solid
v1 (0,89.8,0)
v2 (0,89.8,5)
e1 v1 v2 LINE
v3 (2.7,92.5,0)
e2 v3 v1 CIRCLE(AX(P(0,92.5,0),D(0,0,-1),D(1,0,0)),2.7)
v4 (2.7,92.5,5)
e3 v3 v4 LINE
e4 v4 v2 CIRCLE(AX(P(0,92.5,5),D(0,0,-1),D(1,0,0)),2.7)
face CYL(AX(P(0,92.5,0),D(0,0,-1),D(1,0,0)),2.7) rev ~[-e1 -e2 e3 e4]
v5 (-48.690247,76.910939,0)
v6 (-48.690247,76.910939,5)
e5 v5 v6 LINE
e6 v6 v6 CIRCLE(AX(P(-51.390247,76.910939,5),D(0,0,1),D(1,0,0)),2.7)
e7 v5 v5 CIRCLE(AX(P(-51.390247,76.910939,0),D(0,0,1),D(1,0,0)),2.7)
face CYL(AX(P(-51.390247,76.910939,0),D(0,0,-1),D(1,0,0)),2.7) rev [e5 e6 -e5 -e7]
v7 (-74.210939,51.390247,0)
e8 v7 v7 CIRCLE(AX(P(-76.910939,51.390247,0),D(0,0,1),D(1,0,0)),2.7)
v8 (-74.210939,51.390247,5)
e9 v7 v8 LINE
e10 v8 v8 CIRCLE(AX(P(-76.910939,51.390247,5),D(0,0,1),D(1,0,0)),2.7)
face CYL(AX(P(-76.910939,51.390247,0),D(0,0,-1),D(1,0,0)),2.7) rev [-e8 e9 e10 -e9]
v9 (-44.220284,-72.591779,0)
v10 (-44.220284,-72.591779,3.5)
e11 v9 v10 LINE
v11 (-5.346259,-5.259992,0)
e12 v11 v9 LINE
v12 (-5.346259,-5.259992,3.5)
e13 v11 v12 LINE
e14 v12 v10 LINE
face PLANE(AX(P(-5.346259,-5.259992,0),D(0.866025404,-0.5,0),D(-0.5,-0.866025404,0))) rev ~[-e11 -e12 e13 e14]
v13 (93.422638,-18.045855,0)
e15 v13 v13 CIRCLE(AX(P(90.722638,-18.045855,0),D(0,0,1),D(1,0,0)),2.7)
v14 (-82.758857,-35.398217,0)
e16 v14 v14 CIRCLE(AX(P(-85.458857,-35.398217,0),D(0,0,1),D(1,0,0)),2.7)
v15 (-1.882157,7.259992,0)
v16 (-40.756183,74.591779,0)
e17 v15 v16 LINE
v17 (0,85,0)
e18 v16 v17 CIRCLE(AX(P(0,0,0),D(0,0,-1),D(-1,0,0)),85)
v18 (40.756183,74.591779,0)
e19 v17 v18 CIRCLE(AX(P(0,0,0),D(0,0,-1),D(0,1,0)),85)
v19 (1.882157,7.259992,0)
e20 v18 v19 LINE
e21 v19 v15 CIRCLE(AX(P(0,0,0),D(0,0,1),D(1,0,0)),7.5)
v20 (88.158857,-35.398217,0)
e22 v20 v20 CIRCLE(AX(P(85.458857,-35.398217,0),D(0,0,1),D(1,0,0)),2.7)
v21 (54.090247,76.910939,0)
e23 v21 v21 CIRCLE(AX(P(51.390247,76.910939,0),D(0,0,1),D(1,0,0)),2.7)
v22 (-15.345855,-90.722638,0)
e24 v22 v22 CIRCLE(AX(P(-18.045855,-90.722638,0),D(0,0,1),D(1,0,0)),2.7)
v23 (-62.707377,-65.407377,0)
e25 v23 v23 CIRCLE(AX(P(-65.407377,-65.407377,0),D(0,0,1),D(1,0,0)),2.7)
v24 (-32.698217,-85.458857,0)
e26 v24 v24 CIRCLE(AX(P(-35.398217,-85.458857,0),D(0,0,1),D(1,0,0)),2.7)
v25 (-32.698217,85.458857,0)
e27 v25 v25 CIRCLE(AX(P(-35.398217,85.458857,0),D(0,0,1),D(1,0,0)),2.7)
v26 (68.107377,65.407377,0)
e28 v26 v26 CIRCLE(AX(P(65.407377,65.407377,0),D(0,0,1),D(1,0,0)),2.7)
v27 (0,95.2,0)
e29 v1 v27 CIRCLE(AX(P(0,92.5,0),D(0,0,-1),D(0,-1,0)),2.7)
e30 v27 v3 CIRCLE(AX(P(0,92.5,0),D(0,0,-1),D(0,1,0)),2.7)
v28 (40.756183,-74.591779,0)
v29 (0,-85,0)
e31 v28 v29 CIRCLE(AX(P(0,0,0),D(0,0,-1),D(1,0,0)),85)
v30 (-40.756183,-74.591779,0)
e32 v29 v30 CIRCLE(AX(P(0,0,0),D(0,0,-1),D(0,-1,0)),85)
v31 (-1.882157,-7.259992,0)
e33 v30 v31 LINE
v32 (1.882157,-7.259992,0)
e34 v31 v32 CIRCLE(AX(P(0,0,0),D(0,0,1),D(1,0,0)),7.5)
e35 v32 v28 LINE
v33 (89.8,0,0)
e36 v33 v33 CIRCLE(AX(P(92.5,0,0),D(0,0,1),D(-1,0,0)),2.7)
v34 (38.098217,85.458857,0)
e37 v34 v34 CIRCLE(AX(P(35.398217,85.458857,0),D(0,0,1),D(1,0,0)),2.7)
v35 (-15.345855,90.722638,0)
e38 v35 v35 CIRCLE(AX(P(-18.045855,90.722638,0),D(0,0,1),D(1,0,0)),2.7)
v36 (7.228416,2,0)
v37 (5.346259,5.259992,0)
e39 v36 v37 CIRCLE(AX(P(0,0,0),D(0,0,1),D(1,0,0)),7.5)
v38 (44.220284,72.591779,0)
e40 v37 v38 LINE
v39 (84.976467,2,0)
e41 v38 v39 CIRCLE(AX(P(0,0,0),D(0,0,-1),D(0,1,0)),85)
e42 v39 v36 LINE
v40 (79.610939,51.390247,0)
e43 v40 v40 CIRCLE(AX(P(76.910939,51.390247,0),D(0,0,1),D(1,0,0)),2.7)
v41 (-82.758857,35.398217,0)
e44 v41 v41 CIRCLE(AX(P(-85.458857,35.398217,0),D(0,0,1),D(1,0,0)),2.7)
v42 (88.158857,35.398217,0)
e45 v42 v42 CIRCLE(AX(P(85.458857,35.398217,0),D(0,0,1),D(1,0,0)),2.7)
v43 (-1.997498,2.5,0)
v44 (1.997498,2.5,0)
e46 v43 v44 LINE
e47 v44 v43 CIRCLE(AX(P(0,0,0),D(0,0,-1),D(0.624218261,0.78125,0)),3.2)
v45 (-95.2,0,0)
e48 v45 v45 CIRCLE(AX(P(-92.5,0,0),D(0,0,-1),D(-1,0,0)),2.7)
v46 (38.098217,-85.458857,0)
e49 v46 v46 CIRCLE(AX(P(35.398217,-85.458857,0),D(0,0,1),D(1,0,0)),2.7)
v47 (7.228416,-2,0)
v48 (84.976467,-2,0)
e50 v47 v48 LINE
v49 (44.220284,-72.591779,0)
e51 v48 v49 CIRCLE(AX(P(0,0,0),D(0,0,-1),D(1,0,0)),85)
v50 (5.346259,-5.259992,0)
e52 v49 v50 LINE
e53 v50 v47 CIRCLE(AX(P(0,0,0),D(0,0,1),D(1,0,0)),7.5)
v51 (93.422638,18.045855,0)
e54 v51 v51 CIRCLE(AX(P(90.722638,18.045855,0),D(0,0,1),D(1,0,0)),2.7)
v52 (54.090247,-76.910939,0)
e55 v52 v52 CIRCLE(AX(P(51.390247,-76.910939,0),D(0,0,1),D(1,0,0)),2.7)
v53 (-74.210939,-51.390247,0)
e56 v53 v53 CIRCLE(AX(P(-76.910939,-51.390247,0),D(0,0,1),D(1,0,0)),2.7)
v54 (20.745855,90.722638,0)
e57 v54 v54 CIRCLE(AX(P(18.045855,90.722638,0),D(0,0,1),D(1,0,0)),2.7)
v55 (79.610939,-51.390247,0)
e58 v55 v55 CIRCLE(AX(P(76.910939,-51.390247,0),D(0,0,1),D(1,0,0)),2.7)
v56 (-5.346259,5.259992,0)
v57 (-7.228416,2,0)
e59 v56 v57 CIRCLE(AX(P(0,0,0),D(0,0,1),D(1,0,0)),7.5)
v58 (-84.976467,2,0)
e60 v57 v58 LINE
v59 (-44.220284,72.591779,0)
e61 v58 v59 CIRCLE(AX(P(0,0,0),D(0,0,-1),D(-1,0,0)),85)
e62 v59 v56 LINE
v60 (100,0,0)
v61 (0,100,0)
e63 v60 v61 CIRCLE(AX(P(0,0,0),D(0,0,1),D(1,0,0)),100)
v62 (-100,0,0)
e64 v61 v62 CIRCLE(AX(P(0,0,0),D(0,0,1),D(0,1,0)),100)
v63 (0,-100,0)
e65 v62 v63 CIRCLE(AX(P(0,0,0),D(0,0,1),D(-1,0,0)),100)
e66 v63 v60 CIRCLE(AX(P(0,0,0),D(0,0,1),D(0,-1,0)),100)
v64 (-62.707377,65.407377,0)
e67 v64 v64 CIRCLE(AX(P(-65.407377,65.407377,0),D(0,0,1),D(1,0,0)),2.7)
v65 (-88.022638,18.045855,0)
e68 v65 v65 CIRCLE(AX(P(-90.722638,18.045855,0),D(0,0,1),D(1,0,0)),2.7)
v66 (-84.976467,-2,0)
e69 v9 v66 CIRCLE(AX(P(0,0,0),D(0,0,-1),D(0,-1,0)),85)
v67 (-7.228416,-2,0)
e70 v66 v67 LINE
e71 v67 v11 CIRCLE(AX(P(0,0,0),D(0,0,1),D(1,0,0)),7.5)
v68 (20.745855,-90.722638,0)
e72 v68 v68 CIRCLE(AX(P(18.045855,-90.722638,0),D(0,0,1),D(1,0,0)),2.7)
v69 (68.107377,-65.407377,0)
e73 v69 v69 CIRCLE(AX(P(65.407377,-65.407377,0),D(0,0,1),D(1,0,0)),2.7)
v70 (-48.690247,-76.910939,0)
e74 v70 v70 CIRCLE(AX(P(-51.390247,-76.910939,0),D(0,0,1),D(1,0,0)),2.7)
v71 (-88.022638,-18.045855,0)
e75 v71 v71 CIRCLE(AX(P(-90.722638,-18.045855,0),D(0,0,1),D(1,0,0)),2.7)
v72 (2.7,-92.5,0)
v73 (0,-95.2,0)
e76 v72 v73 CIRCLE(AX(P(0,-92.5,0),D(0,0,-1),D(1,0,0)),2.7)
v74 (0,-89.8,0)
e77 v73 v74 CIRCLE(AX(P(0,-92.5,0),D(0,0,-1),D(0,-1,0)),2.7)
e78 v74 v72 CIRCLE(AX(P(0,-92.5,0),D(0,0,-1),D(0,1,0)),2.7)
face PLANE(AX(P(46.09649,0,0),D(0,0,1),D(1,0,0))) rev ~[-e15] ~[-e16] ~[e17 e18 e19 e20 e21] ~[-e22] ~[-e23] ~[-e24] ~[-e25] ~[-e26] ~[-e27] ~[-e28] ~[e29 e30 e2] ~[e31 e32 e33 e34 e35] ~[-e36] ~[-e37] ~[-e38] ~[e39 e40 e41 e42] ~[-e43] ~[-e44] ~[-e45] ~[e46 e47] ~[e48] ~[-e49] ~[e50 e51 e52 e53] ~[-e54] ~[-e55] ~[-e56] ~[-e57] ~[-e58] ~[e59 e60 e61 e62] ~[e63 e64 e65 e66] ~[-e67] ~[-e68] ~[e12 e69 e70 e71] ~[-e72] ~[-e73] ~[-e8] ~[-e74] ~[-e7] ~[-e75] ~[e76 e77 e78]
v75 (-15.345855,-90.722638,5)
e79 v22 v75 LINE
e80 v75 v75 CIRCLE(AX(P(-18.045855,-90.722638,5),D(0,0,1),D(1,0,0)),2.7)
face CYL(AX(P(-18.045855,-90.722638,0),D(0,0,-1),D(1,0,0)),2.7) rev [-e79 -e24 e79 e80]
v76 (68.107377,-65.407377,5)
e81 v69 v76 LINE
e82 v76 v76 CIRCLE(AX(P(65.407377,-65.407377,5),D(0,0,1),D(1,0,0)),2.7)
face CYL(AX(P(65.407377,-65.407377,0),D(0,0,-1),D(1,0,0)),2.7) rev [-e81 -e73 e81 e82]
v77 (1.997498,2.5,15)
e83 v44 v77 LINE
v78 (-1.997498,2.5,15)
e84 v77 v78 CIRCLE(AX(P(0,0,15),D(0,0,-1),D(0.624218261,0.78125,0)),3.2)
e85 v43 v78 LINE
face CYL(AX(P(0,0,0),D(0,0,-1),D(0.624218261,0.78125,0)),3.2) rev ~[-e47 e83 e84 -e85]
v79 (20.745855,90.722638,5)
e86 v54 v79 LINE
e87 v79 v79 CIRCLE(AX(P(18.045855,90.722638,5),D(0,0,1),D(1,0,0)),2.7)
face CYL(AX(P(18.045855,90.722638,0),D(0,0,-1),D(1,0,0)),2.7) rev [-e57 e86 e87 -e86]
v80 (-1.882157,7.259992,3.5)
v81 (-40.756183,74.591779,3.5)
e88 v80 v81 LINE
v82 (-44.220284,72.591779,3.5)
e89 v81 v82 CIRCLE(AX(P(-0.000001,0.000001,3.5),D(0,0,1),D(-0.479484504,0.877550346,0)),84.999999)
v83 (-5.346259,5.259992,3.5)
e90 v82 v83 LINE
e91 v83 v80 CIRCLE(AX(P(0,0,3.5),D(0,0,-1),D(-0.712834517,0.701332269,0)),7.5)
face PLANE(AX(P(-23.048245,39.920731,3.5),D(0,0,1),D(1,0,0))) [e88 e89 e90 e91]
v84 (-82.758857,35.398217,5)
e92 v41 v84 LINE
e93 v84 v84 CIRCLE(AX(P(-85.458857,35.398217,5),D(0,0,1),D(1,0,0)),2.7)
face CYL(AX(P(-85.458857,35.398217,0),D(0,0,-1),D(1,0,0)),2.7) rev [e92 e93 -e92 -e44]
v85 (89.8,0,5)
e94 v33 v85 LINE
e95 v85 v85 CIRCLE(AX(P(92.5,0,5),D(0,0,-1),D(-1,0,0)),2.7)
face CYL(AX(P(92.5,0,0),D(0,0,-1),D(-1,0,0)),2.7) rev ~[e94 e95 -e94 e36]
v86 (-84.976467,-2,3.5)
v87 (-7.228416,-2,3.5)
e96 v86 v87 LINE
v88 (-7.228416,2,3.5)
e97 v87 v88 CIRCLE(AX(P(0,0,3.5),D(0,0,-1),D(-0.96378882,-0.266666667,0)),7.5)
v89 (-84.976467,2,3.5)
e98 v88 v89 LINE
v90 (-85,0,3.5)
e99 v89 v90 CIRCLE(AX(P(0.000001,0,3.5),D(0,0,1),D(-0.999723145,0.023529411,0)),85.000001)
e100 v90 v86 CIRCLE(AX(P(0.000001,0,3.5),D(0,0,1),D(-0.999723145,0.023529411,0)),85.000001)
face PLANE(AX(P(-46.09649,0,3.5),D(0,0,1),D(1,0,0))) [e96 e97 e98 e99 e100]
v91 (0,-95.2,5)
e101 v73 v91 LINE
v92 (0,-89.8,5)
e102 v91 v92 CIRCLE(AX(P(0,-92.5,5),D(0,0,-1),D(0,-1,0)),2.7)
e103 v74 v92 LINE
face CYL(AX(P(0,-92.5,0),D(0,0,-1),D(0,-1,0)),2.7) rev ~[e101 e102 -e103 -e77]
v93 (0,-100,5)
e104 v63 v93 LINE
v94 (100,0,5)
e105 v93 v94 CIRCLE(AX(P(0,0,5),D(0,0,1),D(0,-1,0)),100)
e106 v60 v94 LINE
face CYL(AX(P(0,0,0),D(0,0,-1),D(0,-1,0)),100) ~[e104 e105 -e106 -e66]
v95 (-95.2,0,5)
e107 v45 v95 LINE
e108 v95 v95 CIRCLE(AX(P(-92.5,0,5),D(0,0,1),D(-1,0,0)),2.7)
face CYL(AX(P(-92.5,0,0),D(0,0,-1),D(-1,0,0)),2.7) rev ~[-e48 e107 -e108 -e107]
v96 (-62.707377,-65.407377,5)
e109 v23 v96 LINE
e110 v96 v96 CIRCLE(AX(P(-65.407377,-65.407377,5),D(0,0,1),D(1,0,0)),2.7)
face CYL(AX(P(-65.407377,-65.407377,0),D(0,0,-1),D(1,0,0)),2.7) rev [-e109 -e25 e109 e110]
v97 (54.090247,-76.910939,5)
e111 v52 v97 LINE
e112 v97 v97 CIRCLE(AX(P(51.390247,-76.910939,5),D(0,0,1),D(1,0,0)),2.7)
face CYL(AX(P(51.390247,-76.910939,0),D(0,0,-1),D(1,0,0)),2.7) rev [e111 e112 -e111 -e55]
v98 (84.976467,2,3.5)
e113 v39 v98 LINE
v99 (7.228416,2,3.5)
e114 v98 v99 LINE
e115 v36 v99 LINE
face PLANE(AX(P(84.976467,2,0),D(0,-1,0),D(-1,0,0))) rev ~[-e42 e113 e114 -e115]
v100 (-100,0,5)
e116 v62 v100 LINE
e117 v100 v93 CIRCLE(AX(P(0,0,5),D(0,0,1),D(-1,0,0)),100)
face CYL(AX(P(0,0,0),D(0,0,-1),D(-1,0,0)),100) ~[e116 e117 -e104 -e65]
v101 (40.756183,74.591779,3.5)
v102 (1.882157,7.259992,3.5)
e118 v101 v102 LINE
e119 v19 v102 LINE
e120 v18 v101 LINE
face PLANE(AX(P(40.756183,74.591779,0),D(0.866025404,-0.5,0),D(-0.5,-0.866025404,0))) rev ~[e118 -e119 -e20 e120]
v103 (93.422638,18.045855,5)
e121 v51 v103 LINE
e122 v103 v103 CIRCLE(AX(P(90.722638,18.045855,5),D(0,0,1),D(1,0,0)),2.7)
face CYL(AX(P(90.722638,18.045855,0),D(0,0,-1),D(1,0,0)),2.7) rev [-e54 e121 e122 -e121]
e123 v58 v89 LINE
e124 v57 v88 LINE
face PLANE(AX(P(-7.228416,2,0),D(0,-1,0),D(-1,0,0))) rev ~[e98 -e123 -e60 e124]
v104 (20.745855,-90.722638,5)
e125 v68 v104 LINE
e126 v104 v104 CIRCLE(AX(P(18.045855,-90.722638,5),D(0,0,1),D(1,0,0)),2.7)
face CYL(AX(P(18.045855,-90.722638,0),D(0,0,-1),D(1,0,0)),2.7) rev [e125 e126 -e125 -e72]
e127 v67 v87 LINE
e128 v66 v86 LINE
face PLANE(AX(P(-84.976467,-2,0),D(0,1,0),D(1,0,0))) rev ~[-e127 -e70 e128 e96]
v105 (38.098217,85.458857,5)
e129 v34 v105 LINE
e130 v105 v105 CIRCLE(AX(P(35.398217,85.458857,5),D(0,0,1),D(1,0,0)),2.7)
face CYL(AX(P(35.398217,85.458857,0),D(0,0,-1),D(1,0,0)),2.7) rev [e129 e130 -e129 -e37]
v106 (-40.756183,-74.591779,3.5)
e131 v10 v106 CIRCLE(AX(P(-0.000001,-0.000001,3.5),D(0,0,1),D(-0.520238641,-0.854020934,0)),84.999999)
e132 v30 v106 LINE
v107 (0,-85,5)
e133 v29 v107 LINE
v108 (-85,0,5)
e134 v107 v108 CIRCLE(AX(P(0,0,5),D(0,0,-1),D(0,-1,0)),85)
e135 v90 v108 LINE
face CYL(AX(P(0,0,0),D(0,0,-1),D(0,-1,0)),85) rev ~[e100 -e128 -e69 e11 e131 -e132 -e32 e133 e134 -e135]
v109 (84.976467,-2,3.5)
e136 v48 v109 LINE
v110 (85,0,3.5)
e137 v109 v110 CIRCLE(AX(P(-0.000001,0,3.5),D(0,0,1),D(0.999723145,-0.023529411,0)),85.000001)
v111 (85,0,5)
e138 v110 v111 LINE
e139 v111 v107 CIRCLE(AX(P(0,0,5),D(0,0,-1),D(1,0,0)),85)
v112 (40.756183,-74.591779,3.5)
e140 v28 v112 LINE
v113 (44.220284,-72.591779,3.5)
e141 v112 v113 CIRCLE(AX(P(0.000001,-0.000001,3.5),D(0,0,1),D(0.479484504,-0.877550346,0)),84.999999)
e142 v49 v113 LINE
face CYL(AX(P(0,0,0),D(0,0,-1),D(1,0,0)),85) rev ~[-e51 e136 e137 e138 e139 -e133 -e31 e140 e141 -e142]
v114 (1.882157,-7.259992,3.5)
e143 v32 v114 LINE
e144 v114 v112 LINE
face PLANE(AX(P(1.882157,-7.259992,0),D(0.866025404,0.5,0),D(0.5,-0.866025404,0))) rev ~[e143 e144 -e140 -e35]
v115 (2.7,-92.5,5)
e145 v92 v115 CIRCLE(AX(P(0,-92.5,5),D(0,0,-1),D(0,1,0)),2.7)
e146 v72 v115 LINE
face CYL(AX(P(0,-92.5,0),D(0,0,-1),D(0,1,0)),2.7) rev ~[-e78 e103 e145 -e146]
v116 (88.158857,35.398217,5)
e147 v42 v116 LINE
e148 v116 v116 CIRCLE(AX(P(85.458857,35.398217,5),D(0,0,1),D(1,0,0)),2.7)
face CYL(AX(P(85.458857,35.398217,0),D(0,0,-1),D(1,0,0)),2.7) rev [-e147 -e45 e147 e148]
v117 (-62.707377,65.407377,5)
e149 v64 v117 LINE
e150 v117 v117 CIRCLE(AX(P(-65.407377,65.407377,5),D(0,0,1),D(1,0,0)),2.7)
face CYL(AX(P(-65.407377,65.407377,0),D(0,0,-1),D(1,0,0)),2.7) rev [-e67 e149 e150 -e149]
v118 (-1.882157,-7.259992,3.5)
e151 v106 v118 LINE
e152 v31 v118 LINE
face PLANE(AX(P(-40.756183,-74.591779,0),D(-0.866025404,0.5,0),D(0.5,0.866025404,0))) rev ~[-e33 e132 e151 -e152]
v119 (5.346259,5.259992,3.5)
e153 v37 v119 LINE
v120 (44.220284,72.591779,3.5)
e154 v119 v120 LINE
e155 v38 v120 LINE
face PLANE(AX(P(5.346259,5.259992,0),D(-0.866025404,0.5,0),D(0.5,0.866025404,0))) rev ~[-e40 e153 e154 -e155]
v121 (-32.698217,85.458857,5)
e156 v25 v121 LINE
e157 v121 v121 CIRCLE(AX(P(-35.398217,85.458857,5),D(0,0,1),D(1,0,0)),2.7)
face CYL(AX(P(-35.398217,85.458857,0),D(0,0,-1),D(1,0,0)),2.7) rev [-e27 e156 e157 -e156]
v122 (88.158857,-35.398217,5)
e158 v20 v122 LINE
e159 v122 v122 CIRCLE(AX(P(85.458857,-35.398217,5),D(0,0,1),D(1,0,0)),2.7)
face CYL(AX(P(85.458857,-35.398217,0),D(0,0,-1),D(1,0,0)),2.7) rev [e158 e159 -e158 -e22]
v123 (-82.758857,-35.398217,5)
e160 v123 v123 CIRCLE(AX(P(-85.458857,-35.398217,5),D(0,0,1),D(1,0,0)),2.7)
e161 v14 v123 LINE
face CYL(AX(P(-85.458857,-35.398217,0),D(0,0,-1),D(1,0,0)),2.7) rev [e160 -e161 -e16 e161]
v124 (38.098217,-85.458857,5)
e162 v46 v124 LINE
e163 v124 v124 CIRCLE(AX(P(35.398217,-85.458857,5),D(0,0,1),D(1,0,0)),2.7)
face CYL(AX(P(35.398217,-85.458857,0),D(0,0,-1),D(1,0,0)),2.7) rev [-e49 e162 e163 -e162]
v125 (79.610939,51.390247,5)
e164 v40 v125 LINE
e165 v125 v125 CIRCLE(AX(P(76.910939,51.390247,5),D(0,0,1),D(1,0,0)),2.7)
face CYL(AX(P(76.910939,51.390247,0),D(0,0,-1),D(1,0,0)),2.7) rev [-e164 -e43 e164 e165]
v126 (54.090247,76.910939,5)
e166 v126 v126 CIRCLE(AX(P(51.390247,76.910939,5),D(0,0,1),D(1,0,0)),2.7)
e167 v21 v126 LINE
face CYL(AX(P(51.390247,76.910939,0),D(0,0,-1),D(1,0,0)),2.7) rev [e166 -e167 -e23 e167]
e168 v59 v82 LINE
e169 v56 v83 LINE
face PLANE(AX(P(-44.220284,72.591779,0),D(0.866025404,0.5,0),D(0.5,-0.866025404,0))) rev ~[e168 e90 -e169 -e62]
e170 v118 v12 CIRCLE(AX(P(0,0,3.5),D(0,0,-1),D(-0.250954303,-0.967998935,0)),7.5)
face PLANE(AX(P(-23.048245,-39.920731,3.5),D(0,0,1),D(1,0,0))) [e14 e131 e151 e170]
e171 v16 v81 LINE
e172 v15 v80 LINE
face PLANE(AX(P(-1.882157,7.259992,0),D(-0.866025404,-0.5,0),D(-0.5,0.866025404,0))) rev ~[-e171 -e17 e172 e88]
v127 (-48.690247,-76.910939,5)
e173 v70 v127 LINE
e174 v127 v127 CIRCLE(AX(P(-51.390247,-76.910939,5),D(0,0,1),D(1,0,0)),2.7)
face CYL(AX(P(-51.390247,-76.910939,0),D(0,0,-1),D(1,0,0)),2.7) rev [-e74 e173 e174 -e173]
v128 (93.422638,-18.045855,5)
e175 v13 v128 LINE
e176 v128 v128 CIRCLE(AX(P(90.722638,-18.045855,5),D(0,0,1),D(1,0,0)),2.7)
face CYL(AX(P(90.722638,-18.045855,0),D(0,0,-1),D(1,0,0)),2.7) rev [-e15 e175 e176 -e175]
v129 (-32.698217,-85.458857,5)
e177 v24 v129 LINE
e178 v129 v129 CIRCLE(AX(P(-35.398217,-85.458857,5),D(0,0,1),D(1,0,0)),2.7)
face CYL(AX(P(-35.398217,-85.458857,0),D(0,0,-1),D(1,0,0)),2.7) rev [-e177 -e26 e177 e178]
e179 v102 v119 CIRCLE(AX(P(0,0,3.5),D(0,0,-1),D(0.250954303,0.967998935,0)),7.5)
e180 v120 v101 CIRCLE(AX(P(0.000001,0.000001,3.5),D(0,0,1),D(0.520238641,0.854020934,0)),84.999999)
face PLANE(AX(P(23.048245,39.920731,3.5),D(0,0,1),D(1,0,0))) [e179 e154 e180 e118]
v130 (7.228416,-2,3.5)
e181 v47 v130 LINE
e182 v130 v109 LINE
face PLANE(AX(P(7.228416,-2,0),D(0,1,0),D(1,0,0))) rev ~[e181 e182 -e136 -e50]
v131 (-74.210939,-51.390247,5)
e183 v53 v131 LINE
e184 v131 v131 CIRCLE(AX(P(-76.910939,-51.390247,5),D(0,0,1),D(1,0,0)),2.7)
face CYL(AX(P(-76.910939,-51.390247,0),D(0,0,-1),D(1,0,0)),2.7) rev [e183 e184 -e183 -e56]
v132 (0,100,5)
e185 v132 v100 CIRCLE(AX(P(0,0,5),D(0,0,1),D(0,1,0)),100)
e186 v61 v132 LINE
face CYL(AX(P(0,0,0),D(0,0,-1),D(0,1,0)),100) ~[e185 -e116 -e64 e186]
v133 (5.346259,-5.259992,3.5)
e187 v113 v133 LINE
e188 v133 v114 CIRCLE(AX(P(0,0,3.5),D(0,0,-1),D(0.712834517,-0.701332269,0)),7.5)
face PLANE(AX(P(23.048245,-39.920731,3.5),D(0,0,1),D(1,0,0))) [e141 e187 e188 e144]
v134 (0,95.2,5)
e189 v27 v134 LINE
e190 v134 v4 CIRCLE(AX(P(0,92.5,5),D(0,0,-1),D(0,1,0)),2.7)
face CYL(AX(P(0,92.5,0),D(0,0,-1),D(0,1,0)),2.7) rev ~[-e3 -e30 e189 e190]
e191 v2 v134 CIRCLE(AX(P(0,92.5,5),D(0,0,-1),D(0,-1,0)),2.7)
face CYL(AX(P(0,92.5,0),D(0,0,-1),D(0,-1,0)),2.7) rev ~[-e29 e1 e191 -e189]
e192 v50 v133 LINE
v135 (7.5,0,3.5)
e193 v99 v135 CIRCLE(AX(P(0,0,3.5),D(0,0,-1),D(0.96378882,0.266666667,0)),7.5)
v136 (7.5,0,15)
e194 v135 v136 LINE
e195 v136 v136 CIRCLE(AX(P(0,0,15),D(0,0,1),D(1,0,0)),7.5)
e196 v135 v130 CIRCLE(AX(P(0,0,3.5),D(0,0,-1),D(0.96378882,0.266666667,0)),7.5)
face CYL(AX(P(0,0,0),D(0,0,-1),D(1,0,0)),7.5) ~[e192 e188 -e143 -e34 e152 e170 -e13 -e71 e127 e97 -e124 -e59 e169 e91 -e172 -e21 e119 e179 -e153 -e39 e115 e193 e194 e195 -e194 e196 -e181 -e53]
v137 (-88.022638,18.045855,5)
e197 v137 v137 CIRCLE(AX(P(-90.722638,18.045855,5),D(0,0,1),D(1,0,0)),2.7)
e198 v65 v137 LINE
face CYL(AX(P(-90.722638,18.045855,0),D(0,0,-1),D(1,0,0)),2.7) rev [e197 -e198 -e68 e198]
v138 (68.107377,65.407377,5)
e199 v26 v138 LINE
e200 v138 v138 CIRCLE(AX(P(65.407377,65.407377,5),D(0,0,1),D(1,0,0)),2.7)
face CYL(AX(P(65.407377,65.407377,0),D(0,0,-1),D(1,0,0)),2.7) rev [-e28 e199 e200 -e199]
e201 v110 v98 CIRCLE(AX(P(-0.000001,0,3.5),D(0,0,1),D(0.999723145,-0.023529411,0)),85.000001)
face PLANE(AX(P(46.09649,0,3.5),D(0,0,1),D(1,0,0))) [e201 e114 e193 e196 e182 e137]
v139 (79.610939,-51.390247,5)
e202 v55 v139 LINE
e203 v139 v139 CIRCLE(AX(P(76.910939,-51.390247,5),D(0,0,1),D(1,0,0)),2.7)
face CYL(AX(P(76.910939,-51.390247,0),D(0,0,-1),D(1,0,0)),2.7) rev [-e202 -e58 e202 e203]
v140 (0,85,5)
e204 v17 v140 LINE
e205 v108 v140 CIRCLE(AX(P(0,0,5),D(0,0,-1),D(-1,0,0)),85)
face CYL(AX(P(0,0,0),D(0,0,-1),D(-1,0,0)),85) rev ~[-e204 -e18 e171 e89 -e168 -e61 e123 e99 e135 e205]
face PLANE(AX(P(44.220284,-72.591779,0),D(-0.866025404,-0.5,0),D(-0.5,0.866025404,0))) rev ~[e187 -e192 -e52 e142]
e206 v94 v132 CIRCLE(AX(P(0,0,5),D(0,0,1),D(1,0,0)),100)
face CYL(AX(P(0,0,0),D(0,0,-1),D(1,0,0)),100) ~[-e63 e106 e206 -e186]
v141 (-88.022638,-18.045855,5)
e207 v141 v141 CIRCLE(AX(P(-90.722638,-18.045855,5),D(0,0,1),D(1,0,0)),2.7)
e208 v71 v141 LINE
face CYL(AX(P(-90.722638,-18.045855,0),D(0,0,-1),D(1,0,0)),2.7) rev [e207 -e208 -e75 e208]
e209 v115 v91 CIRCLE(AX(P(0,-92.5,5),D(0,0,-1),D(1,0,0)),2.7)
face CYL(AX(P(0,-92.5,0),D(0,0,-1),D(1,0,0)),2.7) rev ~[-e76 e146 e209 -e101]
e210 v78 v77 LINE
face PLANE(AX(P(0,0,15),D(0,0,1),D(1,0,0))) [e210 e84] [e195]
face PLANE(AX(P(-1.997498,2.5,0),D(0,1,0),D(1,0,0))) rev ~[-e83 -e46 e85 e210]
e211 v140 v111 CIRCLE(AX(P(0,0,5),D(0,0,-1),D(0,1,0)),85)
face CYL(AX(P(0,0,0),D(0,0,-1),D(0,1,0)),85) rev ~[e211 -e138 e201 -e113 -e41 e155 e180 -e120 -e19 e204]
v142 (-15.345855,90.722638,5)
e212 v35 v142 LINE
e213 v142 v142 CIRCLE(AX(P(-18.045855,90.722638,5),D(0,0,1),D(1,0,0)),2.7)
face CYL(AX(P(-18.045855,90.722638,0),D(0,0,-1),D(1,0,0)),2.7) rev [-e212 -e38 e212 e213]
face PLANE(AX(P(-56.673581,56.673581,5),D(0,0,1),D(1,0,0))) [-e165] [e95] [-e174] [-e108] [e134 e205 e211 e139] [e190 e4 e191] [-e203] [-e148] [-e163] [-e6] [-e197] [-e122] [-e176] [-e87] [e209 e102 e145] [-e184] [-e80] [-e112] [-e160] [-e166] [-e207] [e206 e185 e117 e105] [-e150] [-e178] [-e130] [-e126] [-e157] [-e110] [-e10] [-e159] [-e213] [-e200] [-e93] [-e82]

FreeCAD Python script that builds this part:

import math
import FreeCAD as App
import Part
import Sketcher
Q = App.Units.Quantity

doc = App.newDocument("Part")
body = doc.addObject("PartDesign::Body", "Body")

# Sketch on XY plane
sketch1 = body.newObject("Sketcher::SketchObject", "Sketch")
sketch1.AttachmentSupport = (doc.getObject("XY_Plane"), [""])
sketch1.MapMode = "FlatFace"
sketch1.addGeometry(Part.ArcOfCircle(Part.Circle(App.Vector(0, 0, 0), App.Vector(0, 0, 1), 100), math.radians(0), math.radians(90)), False)
sketch1.addGeometry(Part.ArcOfCircle(Part.Circle(App.Vector(0, 0, 0), App.Vector(0, 0, 1), 100), math.radians(90), math.radians(180)), False)
sketch1.addGeometry(Part.ArcOfCircle(Part.Circle(App.Vector(0, 0, 0), App.Vector(0, 0, 1), 100), math.radians(180), math.radians(270)), False)
sketch1.addGeometry(Part.ArcOfCircle(Part.Circle(App.Vector(0, 0, 0), App.Vector(0, 0, 1), 100), math.radians(-90), math.radians(0)), False)
sketch1.addGeometry(Part.ArcOfCircle(Part.Circle(App.Vector(0, 92.5, 0), App.Vector(0, 0, 1), 2.7), math.radians(-90), math.radians(0)), False)
sketch1.addGeometry(Part.ArcOfCircle(Part.Circle(App.Vector(0, 92.5, 0), App.Vector(0, 0, 1), 2.7), math.radians(90), math.radians(270)), False)
sketch1.addGeometry(Part.ArcOfCircle(Part.Circle(App.Vector(0, 92.5, 0), App.Vector(0, 0, 1), 2.7), math.radians(0), math.radians(90)), False)
sketch1.addGeometry(Part.ArcOfCircle(Part.Circle(App.Vector(0, 0, 0), App.Vector(0, 0, 1), 85), math.radians(0), math.radians(90)), False)
sketch1.addGeometry(Part.ArcOfCircle(Part.Circle(App.Vector(0, 0, 0), App.Vector(0, 0, 1), 85), math.radians(-90), math.radians(0)), False)
sketch1.addGeometry(Part.ArcOfCircle(Part.Circle(App.Vector(0, 0, 0), App.Vector(0, 0, 1), 85), math.radians(180), math.radians(270)), False)
sketch1.addGeometry(Part.ArcOfCircle(Part.Circle(App.Vector(0, 0, 0), App.Vector(0, 0, 1), 85), math.radians(90), math.radians(180)), False)
sketch1.addGeometry(Part.Circle(App.Vector(92.5, 0, 0), App.Vector(0, 0, 1), 2.7), False)
sketch1.addGeometry(Part.Circle(App.Vector(90.722638, 18.045855, 0), App.Vector(0, 0, 1), 2.7), False)
sketch1.addGeometry(Part.Circle(App.Vector(85.458857, 35.398217, 0), App.Vector(0, 0, 1), 2.7), False)
sketch1.addGeometry(Part.Circle(App.Vector(76.910939, 51.390247, 0), App.Vector(0, 0, 1), 2.7), False)
sketch1.addGeometry(Part.Circle(App.Vector(18.045855, 90.722638, 0), App.Vector(0, 0, 1), 2.7), False)
sketch1.addGeometry(Part.Circle(App.Vector(51.390247, 76.910939, 0), App.Vector(0, 0, 1), 2.7), False)
sketch1.addGeometry(Part.Circle(App.Vector(35.398217, 85.458857, 0), App.Vector(0, 0, 1), 2.7), False)
sketch1.addGeometry(Part.Circle(App.Vector(65.407377, 65.407377, 0), App.Vector(0, 0, 1), 2.7), False)
sketch1.addGeometry(Part.Circle(App.Vector(-92.5, 0, 0), App.Vector(0, 0, 1), 2.7), False)
sketch1.addGeometry(Part.Circle(App.Vector(-18.045855, 90.722638, 0), App.Vector(0, 0, 1), 2.7), False)
sketch1.addGeometry(Part.Circle(App.Vector(-35.398217, 85.458857, 0), App.Vector(0, 0, 1), 2.7), False)
sketch1.addGeometry(Part.Circle(App.Vector(-90.722638, 18.045855, 0), App.Vector(0, 0, 1), 2.7), False)
sketch1.addGeometry(Part.Circle(App.Vector(-85.458857, 35.398217, 0), App.Vector(0, 0, 1), 2.7), False)
sketch1.addGeometry(Part.Circle(App.Vector(-76.910939, 51.390247, 0), App.Vector(0, 0, 1), 2.7), False)
sketch1.addGeometry(Part.Circle(App.Vector(-65.407377, 65.407377, 0), App.Vector(0, 0, 1), 2.7), False)
sketch1.addGeometry(Part.Circle(App.Vector(-51.390247, 76.910939, 0), App.Vector(0, 0, 1), 2.7), False)
sketch1.addGeometry(Part.Circle(App.Vector(90.722638, -18.045855, 0), App.Vector(0, 0, 1), 2.7), False)
sketch1.addGeometry(Part.ArcOfCircle(Part.Circle(App.Vector(0, -92.5, 0), App.Vector(0, 0, 1), 2.7), math.radians(0), math.radians(90)), False)
sketch1.addGeometry(Part.ArcOfCircle(Part.Circle(App.Vector(0, -92.5, 0), App.Vector(0, 0, 1), 2.7), math.radians(-90), math.radians(0)), False)
sketch1.addGeometry(Part.ArcOfCircle(Part.Circle(App.Vector(0, -92.5, 0), App.Vector(0, 0, 1), 2.7), math.radians(90), math.radians(270)), False)
sketch1.addGeometry(Part.Circle(App.Vector(85.458857, -35.398217, 0), App.Vector(0, 0, 1), 2.7), False)
sketch1.addGeometry(Part.Circle(App.Vector(18.045855, -90.722638, 0), App.Vector(0, 0, 1), 2.7), False)
sketch1.addGeometry(Part.Circle(App.Vector(35.398217, -85.458857, 0), App.Vector(0, 0, 1), 2.7), False)
sketch1.addGeometry(Part.Circle(App.Vector(51.390247, -76.910939, 0), App.Vector(0, 0, 1), 2.7), False)
sketch1.addGeometry(Part.Circle(App.Vector(65.407377, -65.407377, 0), App.Vector(0, 0, 1), 2.7), False)
sketch1.addGeometry(Part.Circle(App.Vector(76.910939, -51.390247, 0), App.Vector(0, 0, 1), 2.7), False)
sketch1.addGeometry(Part.Circle(App.Vector(-76.910939, -51.390247, 0), App.Vector(0, 0, 1), 2.7), False)
sketch1.addGeometry(Part.Circle(App.Vector(-90.722638, -18.045855, 0), App.Vector(0, 0, 1), 2.7), False)
sketch1.addGeometry(Part.Circle(App.Vector(-18.045855, -90.722638, 0), App.Vector(0, 0, 1), 2.7), False)
sketch1.addGeometry(Part.Circle(App.Vector(-85.458857, -35.398217, 0), App.Vector(0, 0, 1), 2.7), False)
sketch1.addGeometry(Part.Circle(App.Vector(-65.407377, -65.407377, 0), App.Vector(0, 0, 1), 2.7), False)
sketch1.addGeometry(Part.Circle(App.Vector(-35.398217, -85.458857, 0), App.Vector(0, 0, 1), 2.7), False)
sketch1.addGeometry(Part.Circle(App.Vector(-51.390247, -76.910939, 0), App.Vector(0, 0, 1), 2.7), False)
sketch1.addConstraint(Sketcher.Constraint("Tangent", 0, 2, 1, 1))
sketch1.addConstraint(Sketcher.Constraint("Tangent", 1, 2, 2, 1))
sketch1.addConstraint(Sketcher.Constraint("Tangent", 2, 2, 3, 1))
sketch1.addConstraint(Sketcher.Constraint("Tangent", 3, 2, 0, 1))
sketch1.addConstraint(Sketcher.Constraint("Tangent", 4, 1, 5, 2))
sketch1.addConstraint(Sketcher.Constraint("Tangent", 5, 1, 6, 2))
sketch1.addConstraint(Sketcher.Constraint("Tangent", 6, 1, 4, 2))
sketch1.addConstraint(Sketcher.Constraint("Tangent", 7, 1, 8, 2))
sketch1.addConstraint(Sketcher.Constraint("Tangent", 8, 1, 9, 2))
sketch1.addConstraint(Sketcher.Constraint("Tangent", 9, 1, 10, 2))
sketch1.addConstraint(Sketcher.Constraint("Tangent", 10, 1, 7, 2))
sketch1.addConstraint(Sketcher.Constraint("Tangent", 28, 1, 29, 2))
sketch1.addConstraint(Sketcher.Constraint("Tangent", 29, 1, 30, 2))
sketch1.addConstraint(Sketcher.Constraint("Tangent", 30, 1, 28, 2))
sketch1.addConstraint(Sketcher.Constraint("Coincident", 0, 3, -1, 1))
sketch1.addConstraint(Sketcher.Constraint("Coincident", 7, 3, -1, 1))
sketch1.addConstraint(Sketcher.Constraint("Equal", 0, 1))
sketch1.addConstraint(Sketcher.Constraint("Equal", 7, 8))
sketch1.addConstraint(Sketcher.Constraint("Equal", 6, 11))
sketch1.addConstraint(Sketcher.Constraint("Equal", 11, 12))
sketch1.addConstraint(Sketcher.Constraint("Equal", 12, 13))
sketch1.addConstraint(Sketcher.Constraint("Equal", 13, 14))
sketch1.addConstraint(Sketcher.Constraint("Equal", 14, 15))
sketch1.addConstraint(Sketcher.Constraint("Equal", 15, 16))
sketch1.addConstraint(Sketcher.Constraint("Equal", 16, 17))
sketch1.addConstraint(Sketcher.Constraint("Equal", 17, 18))
sketch1.addConstraint(Sketcher.Constraint("Equal", 18, 19))
sketch1.addConstraint(Sketcher.Constraint("Equal", 19, 20))
sketch1.addConstraint(Sketcher.Constraint("Equal", 20, 21))
sketch1.addConstraint(Sketcher.Constraint("Equal", 21, 22))
sketch1.addConstraint(Sketcher.Constraint("Equal", 22, 23))
sketch1.addConstraint(Sketcher.Constraint("Equal", 23, 24))
sketch1.addConstraint(Sketcher.Constraint("Equal", 24, 25))
sketch1.addConstraint(Sketcher.Constraint("Equal", 25, 26))
sketch1.addConstraint(Sketcher.Constraint("Equal", 26, 27))
sketch1.addConstraint(Sketcher.Constraint("Equal", 27, 28))
sketch1.addConstraint(Sketcher.Constraint("Equal", 30, 31))
sketch1.addConstraint(Sketcher.Constraint("Equal", 31, 32))
sketch1.addConstraint(Sketcher.Constraint("Equal", 32, 33))
sketch1.addConstraint(Sketcher.Constraint("Equal", 33, 34))
sketch1.addConstraint(Sketcher.Constraint("Equal", 34, 35))
sketch1.addConstraint(Sketcher.Constraint("Equal", 35, 36))
sketch1.addConstraint(Sketcher.Constraint("Equal", 36, 37))
sketch1.addConstraint(Sketcher.Constraint("Equal", 37, 38))
sketch1.addConstraint(Sketcher.Constraint("Equal", 38, 39))
sketch1.addConstraint(Sketcher.Constraint("Equal", 39, 40))
sketch1.addConstraint(Sketcher.Constraint("Equal", 40, 41))
sketch1.addConstraint(Sketcher.Constraint("Equal", 41, 42))
sketch1.addConstraint(Sketcher.Constraint("Equal", 42, 43))
sketch1.addConstraint(Sketcher.Constraint("Symmetric", 11, 3, 19, 3, -1, 1))
sketch1.addConstraint(Sketcher.Constraint("Symmetric", 22, 3, 27, 3, -1, 1))
sketch1.addConstraint(Sketcher.Constraint("Symmetric", 4, 3, 28, 3, -1, 1))
sketch1.addConstraint(Sketcher.Constraint("Symmetric", 23, 3, 31, 3, -1, 1))
sketch1.addConstraint(Sketcher.Constraint("Symmetric", 20, 3, 32, 3, -1, 1))
sketch1.addConstraint(Sketcher.Constraint("Symmetric", 21, 3, 33, 3, -1, 1))
sketch1.addConstraint(Sketcher.Constraint("Symmetric", 26, 3, 34, 3, -1, 1))
sketch1.addConstraint(Sketcher.Constraint("Symmetric", 25, 3, 35, 3, -1, 1))
sketch1.addConstraint(Sketcher.Constraint("Symmetric", 24, 3, 36, 3, -1, 1))
sketch1.addConstraint(Sketcher.Constraint("Symmetric", 14, 3, 37, 3, -1, 1))
sketch1.addConstraint(Sketcher.Constraint("Symmetric", 12, 3, 38, 3, -1, 1))
sketch1.addConstraint(Sketcher.Constraint("Symmetric", 15, 3, 39, 3, -1, 1))
sketch1.addConstraint(Sketcher.Constraint("Symmetric", 13, 3, 40, 3, -1, 1))
sketch1.addConstraint(Sketcher.Constraint("Symmetric", 18, 3, 41, 3, -1, 1))
sketch1.addConstraint(Sketcher.Constraint("Symmetric", 17, 3, 42, 3, -1, 1))
sketch1.addConstraint(Sketcher.Constraint("Symmetric", 16, 3, 43, 3, -1, 1))
sketch1.addConstraint(Sketcher.Constraint("Symmetric", 15, 3, 20, 3, -2))
sketch1.addConstraint(Sketcher.Constraint("Symmetric", 17, 3, 21, 3, -2))
sketch1.addConstraint(Sketcher.Constraint("Symmetric", 12, 3, 22, 3, -2))
sketch1.addConstraint(Sketcher.Constraint("Symmetric", 13, 3, 23, 3, -2))
sketch1.addConstraint(Sketcher.Constraint("Symmetric", 14, 3, 24, 3, -2))
sketch1.addConstraint(Sketcher.Constraint("Symmetric", 18, 3, 25, 3, -2))
sketch1.addConstraint(Sketcher.Constraint("Symmetric", 16, 3, 26, 3, -2))
sketch1.addConstraint(Sketcher.Constraint("Symmetric", 6, 1, 28, 1, -1))
sketch1.addConstraint(Sketcher.Constraint("PointOnObject", 11, 3, -1))
sketch1.addConstraint(Sketcher.Constraint("PointOnObject", 0, 2, -2))
sketch1.addConstraint(Sketcher.Constraint("PointOnObject", 1, 2, -1))
sketch1.addConstraint(Sketcher.Constraint("PointOnObject", 2, 2, -2))
sketch1.addConstraint(Sketcher.Constraint("PointOnObject", 3, 2, -1))
sketch1.addConstraint(Sketcher.Constraint("PointOnObject", 4, 1, -2))
sketch1.addConstraint(Sketcher.Constraint("PointOnObject", 5, 1, -2))
sketch1.addConstraint(Sketcher.Constraint("PointOnObject", 7, 1, -1))
sketch1.addConstraint(Sketcher.Constraint("PointOnObject", 8, 1, -2))
sketch1.addConstraint(Sketcher.Constraint("PointOnObject", 9, 1, -1))
sketch1.addConstraint(Sketcher.Constraint("PointOnObject", 10, 1, -2))
sketch1.addConstraint(Sketcher.Constraint("PointOnObject", 29, 1, -2))
sketch1.addConstraint(Sketcher.Constraint("PointOnObject", 30, 1, -2))
sketch1.addConstraint(Sketcher.Constraint("Horizontal", 5, 3, 6, 1))
sketch1.addConstraint(Sketcher.Constraint("Radius", 0, Q("100 mm")))
sketch1.addConstraint(Sketcher.Constraint("Radius", 7, Q("85 mm")))
sketch1.addConstraint(Sketcher.Constraint("Diameter", 11, Q("5.4 mm")))
sketch1.addConstraint(Sketcher.Constraint("DistanceY", -1, 1, 4, 3, Q("92.5 mm")))
sketch1.addConstraint(Sketcher.Constraint("DistanceX", -1, 1, 11, 3, Q("92.5 mm")))
sketch1.addConstraint(Sketcher.Constraint("DistanceX", 15, 3, 13, 3, Q("67.413002 mm")))
sketch1.addConstraint(Sketcher.Constraint("DistanceY", 22, 3, 21, 3, Q("67.413002 mm")))
sketch1.addConstraint(Sketcher.Constraint("DistanceX", 14, 3, 12, 3, Q("13.811699 mm")))
sketch1.addConstraint(Sketcher.Constraint("DistanceY", 16, 3, 15, 3, Q("13.811699 mm")))
sketch1.addConstraint(Sketcher.Constraint("DistanceY", 27, 3, 14, 3, Q("69.436101 mm")))
sketch1.addConstraint(Sketcher.Constraint("DistanceX", -1, 1, 12, 3, Q("90.722638 mm")))
sketch1.addConstraint(Sketcher.Constraint("DistanceY", -1, 1, 15, 3, Q("90.722638 mm")))
sketch1.addConstraint(Sketcher.Constraint("DistanceX", 13, 3, 12, 3, Q("5.263782 mm")))
sketch1.addConstraint(Sketcher.Constraint("DistanceY", 13, 3, 14, 3, Q("15.992029 mm")))
sketch1.addConstraint(Sketcher.Constraint("DistanceY", 12, 3, 14, 3, Q("33.344392 mm")))
sketch1.addConstraint(Sketcher.Constraint("DistanceX", 15, 3, 16, 3, Q("33.344392 mm")))
sketch1.addConstraint(Sketcher.Constraint("DistanceX", 17, 3, 16, 3, Q("15.992029 mm")))
sketch1.addConstraint(Sketcher.Constraint("DistanceX", 18, 3, 14, 3, Q("11.503562 mm")))
sketch1.addConstraint(Sketcher.Constraint("DistanceY", 14, 3, 18, 3, Q("14.017131 mm")))
pad1 = body.newObject("PartDesign::Pad", "Pad")
pad1.Profile = sketch1
pad1.Length = 5
body2 = doc.addObject("PartDesign::Body", "Body001")

# Sketch on XY plane
sketch2 = body2.newObject("Sketcher::SketchObject", "Sketch001")
sketch2.AttachmentSupport = (doc.getObject("XY_Plane001"), [""])
sketch2.MapMode = "FlatFace"
sketch2.addGeometry(Part.Circle(App.Vector(0, 0, 0), App.Vector(0, 0, 1), 7.5), False)
sketch2.addGeometry(Part.ArcOfCircle(Part.Circle(App.Vector(0, 0, 0), App.Vector(0, 0, 1), 3.2), math.radians(128.624833), math.radians(411.375167)), False)
sketch2.addGeometry(Part.LineSegment(App.Vector(-1.997498, 2.5, 0), App.Vector(1.997498, 2.5, 0)), False)
sketch2.addConstraint(Sketcher.Constraint("Coincident", 1, 1, 2, 1))
sketch2.addConstraint(Sketcher.Constraint("Coincident", 2, 2, 1, 2))
sketch2.addConstraint(Sketcher.Constraint("Horizontal", 2))
sketch2.addConstraint(Sketcher.Constraint("Coincident", 0, 3, -1, 1))
sketch2.addConstraint(Sketcher.Constraint("Coincident", 1, 3, -1, 1))
sketch2.addConstraint(Sketcher.Constraint("Diameter", 0, Q("15 mm")))
sketch2.addConstraint(Sketcher.Constraint("Radius", 1, Q("3.2 mm")))
sketch2.addConstraint(Sketcher.Constraint("DistanceY", -1, 1, 1, 1, Q("2.5 mm")))
pad2 = body2.newObject("PartDesign::Pad", "Pad001")
pad2.Profile = sketch2
pad2.Length = 15
body.AllowCompound = True
doc.recompute()

boolean = body.newObject("PartDesign::Boolean", "Boolean")
boolean.Type = "Fuse"
boolean.addObjects([body2])

# Sketch on XY plane
sketch3 = body.newObject("Sketcher::SketchObject", "Sketch002")
sketch3.AttachmentSupport = (doc.getObject("XY_Plane"), [""])
sketch3.MapMode = "FlatFace"
sketch3.addGeometry(Part.LineSegment(App.Vector(84.976467, 2, 0), App.Vector(7.228416, 2, 0)), False)
sketch3.addGeometry(Part.ArcOfCircle(Part.Circle(App.Vector(0, 0, 0), App.Vector(0, 0, 1), 7.5), math.radians(-15.46601), math.radians(15.46601)), False)
sketch3.addGeometry(Part.LineSegment(App.Vector(7.228416, -2, 0), App.Vector(84.976467, -2, 0)), False)
sketch3.addGeometry(Part.ArcOfCircle(Part.Circle(App.Vector(-0.000001, 0, 0), App.Vector(0, 0, 1), 85.000001), math.radians(-1.34826), math.radians(1.34826)), False)
sketch3.addGeometry(Part.LineSegment(App.Vector(44.220284, -72.591779, 0), App.Vector(5.346259, -5.259992, 0)), False)
sketch3.addGeometry(Part.ArcOfCircle(Part.Circle(App.Vector(0, 0, 0), App.Vector(0, 0, 1), 7.5), math.radians(-75.46601), math.radians(-44.53399)), False)
sketch3.addGeometry(Part.LineSegment(App.Vector(1.882157, -7.259992, 0), App.Vector(40.756183, -74.591779, 0)), False)
sketch3.addGeometry(Part.ArcOfCircle(Part.Circle(App.Vector(0.000001, -0.000001, 0), App.Vector(0, 0, 1), 84.999999), math.radians(-61.34826), math.radians(-58.65174)), False)
sketch3.addGeometry(Part.LineSegment(App.Vector(-40.756183, -74.591779, 0), App.Vector(-1.882157, -7.259992, 0)), False)
sketch3.addGeometry(Part.ArcOfCircle(Part.Circle(App.Vector(0, 0, 0), App.Vector(0, 0, 1), 7.5), math.radians(-135.46601), math.radians(-104.53399)), False)
sketch3.addGeometry(Part.LineSegment(App.Vector(-5.346259, -5.259992, 0), App.Vector(-44.220284, -72.591779, 0)), False)
sketch3.addGeometry(Part.ArcOfCircle(Part.Circle(App.Vector(-0.000001, -0.000001, 0), App.Vector(0, 0, 1), 84.999999), math.radians(-121.34826), math.radians(-118.65174)), False)
sketch3.addGeometry(Part.LineSegment(App.Vector(-84.976467, -2, 0), App.Vector(-7.228416, -2, 0)), False)
sketch3.addGeometry(Part.ArcOfCircle(Part.Circle(App.Vector(0, 0, 0), App.Vector(0, 0, 1), 7.5), math.radians(164.53399), math.radians(195.46601)), False)
sketch3.addGeometry(Part.LineSegment(App.Vector(-7.228416, 2, 0), App.Vector(-84.976467, 2, 0)), False)
sketch3.addGeometry(Part.ArcOfCircle(Part.Circle(App.Vector(0.000001, 0, 0), App.Vector(0, 0, 1), 85.000001), math.radians(178.65174), math.radians(181.34826)), False)
sketch3.addGeometry(Part.LineSegment(App.Vector(-44.220284, 72.591779, 0), App.Vector(-5.346259, 5.259992, 0)), False)
sketch3.addGeometry(Part.ArcOfCircle(Part.Circle(App.Vector(0, 0, 0), App.Vector(0, 0, 1), 7.5), math.radians(104.53399), math.radians(135.46601)), False)
sketch3.addGeometry(Part.LineSegment(App.Vector(-1.882157, 7.259992, 0), App.Vector(-40.756183, 74.591779, 0)), False)
sketch3.addGeometry(Part.ArcOfCircle(Part.Circle(App.Vector(-0.000001, 0.000001, 0), App.Vector(0, 0, 1), 84.999999), math.radians(118.65174), math.radians(121.34826)), False)
sketch3.addGeometry(Part.LineSegment(App.Vector(40.756183, 74.591779, 0), App.Vector(1.882157, 7.259992, 0)), False)
sketch3.addGeometry(Part.ArcOfCircle(Part.Circle(App.Vector(0, 0, 0), App.Vector(0, 0, 1), 7.5), math.radians(44.53399), math.radians(75.46601)), False)
sketch3.addGeometry(Part.LineSegment(App.Vector(5.346259, 5.259992, 0), App.Vector(44.220284, 72.591779, 0)), False)
sketch3.addGeometry(Part.ArcOfCircle(Part.Circle(App.Vector(0.000001, 0.000001, 0), App.Vector(0, 0, 1), 84.999999), math.radians(58.65174), math.radians(61.34826)), False)
sketch3.addConstraint(Sketcher.Constraint("Coincident", 0, 2, 1, 2))
sketch3.addConstraint(Sketcher.Constraint("Coincident", 1, 1, 2, 1))
sketch3.addConstraint(Sketcher.Constraint("Coincident", 2, 2, 3, 1))
sketch3.addConstraint(Sketcher.Constraint("Coincident", 3, 2, 0, 1))
sketch3.addConstraint(Sketcher.Constraint("Coincident", 4, 2, 5, 2))
sketch3.addConstraint(Sketcher.Constraint("Coincident", 5, 1, 6, 1))
sketch3.addConstraint(Sketcher.Constraint("Coincident", 6, 2, 7, 1))
sketch3.addConstraint(Sketcher.Constraint("Coincident", 7, 2, 4, 1))
sketch3.addConstraint(Sketcher.Constraint("Coincident", 8, 2, 9, 2))
sketch3.addConstraint(Sketcher.Constraint("Coincident", 9, 1, 10, 1))
sketch3.addConstraint(Sketcher.Constraint("Coincident", 10, 2, 11, 1))
sketch3.addConstraint(Sketcher.Constraint("Coincident", 11, 2, 8, 1))
sketch3.addConstraint(Sketcher.Constraint("Coincident", 12, 2, 13, 2))
sketch3.addConstraint(Sketcher.Constraint("Coincident", 13, 1, 14, 1))
sketch3.addConstraint(Sketcher.Constraint("Coincident", 14, 2, 15, 1))
sketch3.addConstraint(Sketcher.Constraint("Coincident", 15, 2, 12, 1))
sketch3.addConstraint(Sketcher.Constraint("Coincident", 16, 2, 17, 2))
sketch3.addConstraint(Sketcher.Constraint("Coincident", 17, 1, 18, 1))
sketch3.addConstraint(Sketcher.Constraint("Coincident", 18, 2, 19, 1))
sketch3.addConstraint(Sketcher.Constraint("Coincident", 19, 2, 16, 1))
sketch3.addConstraint(Sketcher.Constraint("Coincident", 20, 2, 21, 2))
sketch3.addConstraint(Sketcher.Constraint("Coincident", 21, 1, 22, 1))
sketch3.addConstraint(Sketcher.Constraint("Coincident", 22, 2, 23, 1))
sketch3.addConstraint(Sketcher.Constraint("Coincident", 23, 2, 20, 1))
sketch3.addConstraint(Sketcher.Constraint("Horizontal", 0))
sketch3.addConstraint(Sketcher.Constraint("Horizontal", 2))
sketch3.addConstraint(Sketcher.Constraint("Horizontal", 12))
sketch3.addConstraint(Sketcher.Constraint("Horizontal", 14))
sketch3.addConstraint(Sketcher.Constraint("Coincident", 1, 3, -1, 1))
sketch3.addConstraint(Sketcher.Constraint("Coincident", 3, 3, -1, 1))
sketch3.addConstraint(Sketcher.Constraint("Coincident", 5, 3, -1, 1))
sketch3.addConstraint(Sketcher.Constraint("Coincident", 7, 3, -1, 1))
sketch3.addConstraint(Sketcher.Constraint("Coincident", 9, 3, -1, 1))
sketch3.addConstraint(Sketcher.Constraint("Coincident", 11, 3, -1, 1))
sketch3.addConstraint(Sketcher.Constraint("Coincident", 13, 3, -1, 1))
sketch3.addConstraint(Sketcher.Constraint("Coincident", 15, 3, -1, 1))
sketch3.addConstraint(Sketcher.Constraint("Coincident", 17, 3, -1, 1))
sketch3.addConstraint(Sketcher.Constraint("Coincident", 19, 3, -1, 1))
sketch3.addConstraint(Sketcher.Constraint("Coincident", 21, 3, -1, 1))
sketch3.addConstraint(Sketcher.Constraint("Coincident", 23, 3, -1, 1))
sketch3.addConstraint(Sketcher.Constraint("Equal", 1, 5))
sketch3.addConstraint(Sketcher.Constraint("Equal", 5, 9))
sketch3.addConstraint(Sketcher.Constraint("Equal", 7, 11))
sketch3.addConstraint(Sketcher.Constraint("Equal", 9, 13))
sketch3.addConstraint(Sketcher.Constraint("Equal", 3, 15))
sketch3.addConstraint(Sketcher.Constraint("Equal", 13, 17))
sketch3.addConstraint(Sketcher.Constraint("Equal", 11, 19))
sketch3.addConstraint(Sketcher.Constraint("Equal", 17, 21))
sketch3.addConstraint(Sketcher.Constraint("Equal", 19, 23))
sketch3.addConstraint(Sketcher.Constraint("Parallel", 4, 6))
sketch3.addConstraint(Sketcher.Constraint("Parallel", 8, 10))
sketch3.addConstraint(Sketcher.Constraint("Parallel", 6, 16))
sketch3.addConstraint(Sketcher.Constraint("Parallel", 16, 18))
sketch3.addConstraint(Sketcher.Constraint("Parallel", 10, 20))
sketch3.addConstraint(Sketcher.Constraint("Parallel", 20, 22))
sketch3.addConstraint(Sketcher.Constraint("Horizontal", 5, 1, 8, 2))
sketch3.addConstraint(Sketcher.Constraint("Horizontal", 4, 2, 9, 1))
sketch3.addConstraint(Sketcher.Constraint("Horizontal", 7, 2, 10, 2))
sketch3.addConstraint(Sketcher.Constraint("Horizontal", 2, 2, 12, 2))
sketch3.addConstraint(Sketcher.Constraint("Horizontal", 3, 2, 13, 1))
sketch3.addConstraint(Sketcher.Constraint("Horizontal", 17, 1, 20, 2))
sketch3.addConstraint(Sketcher.Constraint("Horizontal", 16, 2, 21, 1))
sketch3.addConstraint(Sketcher.Constraint("Vertical", 0, 2, 1, 1))
sketch3.addConstraint(Sketcher.Constraint("Vertical", 9, 1, 16, 2))
sketch3.addConstraint(Sketcher.Constraint("Vertical", 8, 2, 17, 1))
sketch3.addConstraint(Sketcher.Constraint("Equal", 4, 6))
sketch3.addConstraint(Sketcher.Constraint("Radius", 3, Q("85.000001 mm")))
sketch3.addConstraint(Sketcher.Constraint("Radius", 7, Q("84.999999 mm")))
sketch3.addConstraint(Sketcher.Constraint("Radius", 1, Q("7.5 mm")))
sketch3.addConstraint(Sketcher.Constraint("Angle", 4, Q("120 deg")))
sketch3.addConstraint(Sketcher.Constraint("DistanceY", -1, 1, 0, 2, Q("2 mm")))
sketch3.addConstraint(Sketcher.Constraint("DistanceY", 5, 1, 4, 2, Q("2 mm")))
pad3 = body.newObject("PartDesign::Pad", "Pad002")
pad3.Profile = sketch3
pad3.Length = 3.5

doc.recompute()
